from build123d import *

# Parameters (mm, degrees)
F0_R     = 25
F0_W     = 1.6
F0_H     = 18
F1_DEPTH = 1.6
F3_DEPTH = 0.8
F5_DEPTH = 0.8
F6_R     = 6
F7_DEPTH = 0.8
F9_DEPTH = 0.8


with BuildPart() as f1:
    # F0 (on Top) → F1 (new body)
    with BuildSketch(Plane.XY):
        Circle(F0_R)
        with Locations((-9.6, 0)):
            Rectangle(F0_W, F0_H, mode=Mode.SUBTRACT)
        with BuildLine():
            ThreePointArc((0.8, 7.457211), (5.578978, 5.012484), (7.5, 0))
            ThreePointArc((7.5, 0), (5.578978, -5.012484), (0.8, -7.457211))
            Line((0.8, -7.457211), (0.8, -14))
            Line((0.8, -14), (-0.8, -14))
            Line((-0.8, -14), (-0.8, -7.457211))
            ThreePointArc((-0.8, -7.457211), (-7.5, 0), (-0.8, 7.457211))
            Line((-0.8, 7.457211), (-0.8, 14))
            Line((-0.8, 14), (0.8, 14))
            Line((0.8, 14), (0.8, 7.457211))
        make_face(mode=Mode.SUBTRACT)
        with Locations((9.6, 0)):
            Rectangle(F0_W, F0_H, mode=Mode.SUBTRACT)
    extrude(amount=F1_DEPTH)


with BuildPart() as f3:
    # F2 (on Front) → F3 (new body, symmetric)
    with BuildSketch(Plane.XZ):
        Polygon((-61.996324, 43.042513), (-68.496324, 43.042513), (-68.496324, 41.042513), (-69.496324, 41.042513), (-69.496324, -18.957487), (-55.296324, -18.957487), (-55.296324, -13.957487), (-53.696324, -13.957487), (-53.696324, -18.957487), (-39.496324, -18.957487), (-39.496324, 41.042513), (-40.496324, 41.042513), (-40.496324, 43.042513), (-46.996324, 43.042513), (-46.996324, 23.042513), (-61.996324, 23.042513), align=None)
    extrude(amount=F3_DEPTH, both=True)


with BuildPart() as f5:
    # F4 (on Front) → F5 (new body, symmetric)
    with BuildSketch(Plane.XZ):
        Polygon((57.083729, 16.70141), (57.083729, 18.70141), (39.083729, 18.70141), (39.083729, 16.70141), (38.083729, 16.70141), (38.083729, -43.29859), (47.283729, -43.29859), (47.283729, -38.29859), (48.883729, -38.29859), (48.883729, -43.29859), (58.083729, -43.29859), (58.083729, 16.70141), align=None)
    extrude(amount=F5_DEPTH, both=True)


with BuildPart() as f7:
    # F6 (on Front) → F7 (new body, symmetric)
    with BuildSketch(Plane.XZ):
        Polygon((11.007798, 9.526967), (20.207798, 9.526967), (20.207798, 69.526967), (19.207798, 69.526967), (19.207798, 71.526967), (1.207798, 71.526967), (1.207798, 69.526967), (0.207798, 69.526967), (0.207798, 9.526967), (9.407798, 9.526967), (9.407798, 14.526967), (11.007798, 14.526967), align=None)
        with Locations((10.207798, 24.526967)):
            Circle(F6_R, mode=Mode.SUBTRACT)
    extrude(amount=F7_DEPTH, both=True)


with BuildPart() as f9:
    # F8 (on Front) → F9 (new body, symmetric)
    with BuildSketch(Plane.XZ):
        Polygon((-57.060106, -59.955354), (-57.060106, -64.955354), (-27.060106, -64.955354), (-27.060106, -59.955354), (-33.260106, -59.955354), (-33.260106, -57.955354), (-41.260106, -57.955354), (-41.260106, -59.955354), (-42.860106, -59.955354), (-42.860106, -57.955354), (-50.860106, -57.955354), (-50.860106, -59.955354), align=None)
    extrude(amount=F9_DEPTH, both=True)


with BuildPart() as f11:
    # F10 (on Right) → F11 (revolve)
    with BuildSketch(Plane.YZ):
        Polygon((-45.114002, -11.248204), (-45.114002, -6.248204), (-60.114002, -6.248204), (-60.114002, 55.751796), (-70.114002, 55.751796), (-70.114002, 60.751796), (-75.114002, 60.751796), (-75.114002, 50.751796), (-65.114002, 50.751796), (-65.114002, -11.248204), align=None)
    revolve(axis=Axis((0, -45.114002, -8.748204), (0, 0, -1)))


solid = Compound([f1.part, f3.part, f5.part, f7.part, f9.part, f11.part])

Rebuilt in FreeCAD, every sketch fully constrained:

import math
import FreeCAD as App
import Part
import Sketcher

doc = App.newDocument("Part")
body = doc.addObject("PartDesign::Body", "Body")

# Sketch on XY plane
sketch1 = body.newObject("Sketcher::SketchObject", "Sketch")
sketch1.AttachmentSupport = (doc.getObject("XY_Plane"), [""])
sketch1.MapMode = "FlatFace"
sketch1.addGeometry([
    Part.Circle(App.Vector(0, 0, 0), App.Vector(0, 0, 1), 25),  # 0
    Part.LineSegment(App.Vector(-8.8, -9, 0), App.Vector(-10.4, -9, 0)),  # 1
    Part.LineSegment(App.Vector(-10.4, -9, 0), App.Vector(-10.4, 9, 0)),  # 2
    Part.LineSegment(App.Vector(-10.4, 9, 0), App.Vector(-8.8, 9, 0)),  # 3
    Part.LineSegment(App.Vector(-8.8, 9, 0), App.Vector(-8.8, -9, 0)),  # 4
    Part.LineSegment(App.Vector(0.8, 14, 0), App.Vector(0.8, 7.5, 0)),  # 5
    Part.ArcOfCircle(Part.Circle(App.Vector(0, 0, 0), App.Vector(0, 0, 1), 7.5), math.radians(0), math.radians(84)),  # 6
    Part.ArcOfCircle(Part.Circle(App.Vector(0, 0, 0), App.Vector(0, 0, 1), 7.5), math.radians(-84), math.radians(0)),  # 7
    Part.LineSegment(App.Vector(0.8, -7.5, 0), App.Vector(0.8, -14, 0)),  # 8
    Part.LineSegment(App.Vector(0.8, -14, 0), App.Vector(-0.8, -14, 0)),  # 9
    Part.LineSegment(App.Vector(-0.8, -14, 0), App.Vector(-0.8, -7.5, 0)),  # 10
    Part.ArcOfCircle(Part.Circle(App.Vector(0, 0, 0), App.Vector(0, 0, 1), 7.5), math.radians(96), math.radians(264)),  # 11
    Part.LineSegment(App.Vector(-0.8, 7.5, 0), App.Vector(-0.8, 14, 0)),  # 12
    Part.LineSegment(App.Vector(-0.8, 14, 0), App.Vector(0.8, 14, 0)),  # 13
    Part.LineSegment(App.Vector(10.4, -9, 0), App.Vector(8.8, -9, 0)),  # 14
    Part.LineSegment(App.Vector(8.8, -9, 0), App.Vector(8.8, 9, 0)),  # 15
    Part.LineSegment(App.Vector(8.8, 9, 0), App.Vector(10.4, 9, 0)),  # 16
    Part.LineSegment(App.Vector(10.4, 9, 0), App.Vector(10.4, -9, 0)),  # 17
], False)
sketch1.addConstraint([
    Sketcher.Constraint("Coincident", 1, 2, 2, 1),
    Sketcher.Constraint("Coincident", 2, 2, 3, 1),
    Sketcher.Constraint("Coincident", 3, 2, 4, 1),
    Sketcher.Constraint("Coincident", 4, 2, 1, 1),
    Sketcher.Constraint("Coincident", 5, 2, 6, 2),
    Sketcher.Constraint("Tangent", 6, 1, 7, 2),
    Sketcher.Constraint("Coincident", 7, 1, 8, 1),
    Sketcher.Constraint("Coincident", 8, 2, 9, 1),
    Sketcher.Constraint("Coincident", 9, 2, 10, 1),
    Sketcher.Constraint("Coincident", 10, 2, 11, 2),
    Sketcher.Constraint("Coincident", 11, 1, 12, 1),
    Sketcher.Constraint("Coincident", 12, 2, 13, 1),
    Sketcher.Constraint("Coincident", 13, 2, 5, 1),
    Sketcher.Constraint("Coincident", 14, 2, 15, 1),
    Sketcher.Constraint("Coincident", 15, 2, 16, 1),
    Sketcher.Constraint("Coincident", 16, 2, 17, 1),
    Sketcher.Constraint("Coincident", 17, 2, 14, 1),
    Sketcher.Constraint("Horizontal", 1),
    Sketcher.Constraint("Vertical", 2),
    Sketcher.Constraint("Horizontal", 3),
    Sketcher.Constraint("Vertical", 4),
    Sketcher.Constraint("Vertical", 5),
    Sketcher.Constraint("Vertical", 8),
    Sketcher.Constraint("Horizontal", 9),
    Sketcher.Constraint("Vertical", 10),
    Sketcher.Constraint("Vertical", 12),
    Sketcher.Constraint("Horizontal", 13),
    Sketcher.Constraint("Horizontal", 14),
    Sketcher.Constraint("Vertical", 15),
    Sketcher.Constraint("Horizontal", 16),
    Sketcher.Constraint("Vertical", 17),
    Sketcher.Constraint("Coincident", 0, 3, -1, 1),
    Sketcher.Constraint("Coincident", 6, 3, -1, 1),
    Sketcher.Constraint("Coincident", 11, 3, -1, 1),
    Sketcher.Constraint("Equal", 6, 7),
    Sketcher.Constraint("Equal", 7, 11),
    Sketcher.Constraint("Symmetric", 8, 2, 12, 2, -1, 1),
    Sketcher.Constraint("Symmetric", 3, 2, 14, 2, -1, 1),
    Sketcher.Constraint("Symmetric", 1, 2, 16, 2, -1, 1),
    Sketcher.Constraint("PointOnObject", 6, 1, -1),
    Sketcher.Constraint("Horizontal", 7, 1, 10, 2),
    Sketcher.Constraint("Horizontal", 5, 2, 11, 1),
    Sketcher.Constraint("Horizontal", 4, 2, 14, 2),
    Sketcher.Constraint("Equal", 3, 9),
    Sketcher.Constraint("Diameter", 0, 50.0),
    Sketcher.Constraint("Radius", 6, 7.500001),
    Sketcher.Constraint("DistanceY", 2, 1, 2, 2, 18.0),
    Sketcher.Constraint("DistanceX", 1, 2, 1, 1, 1.6),
    Sketcher.Constraint("DistanceY", 8, 2, -1, 1, 14.0),
    Sketcher.Constraint("DistanceX", 4, 2, 9, 2, 8.0),
])
pad1 = body.newObject("PartDesign::Pad", "Pad")
pad1.Profile = sketch1
pad1.Length = 1.6
body2 = doc.addObject("PartDesign::Body", "Body001")

# Sketch on XZ plane
sketch2 = body2.newObject("Sketcher::SketchObject", "Sketch001")
sketch2.AttachmentSupport = (doc.getObject("XZ_Plane001"), [""])
sketch2.MapMode = "FlatFace"
sketch2.addGeometry([
    Part.LineSegment(App.Vector(-62, 43, 0), App.Vector(-68.5, 43, 0)),  # 0
    Part.LineSegment(App.Vector(-68.5, 43, 0), App.Vector(-68.5, 41, 0)),  # 1
    Part.LineSegment(App.Vector(-68.5, 41, 0), App.Vector(-69.5, 41, 0)),  # 2
    Part.LineSegment(App.Vector(-69.5, 41, 0), App.Vector(-69.5, -19, 0)),  # 3
    Part.LineSegment(App.Vector(-69.5, -19, 0), App.Vector(-55.3, -19, 0)),  # 4
    Part.LineSegment(App.Vector(-55.3, -19, 0), App.Vector(-55.3, -14, 0)),  # 5
    Part.LineSegment(App.Vector(-55.3, -14, 0), App.Vector(-53.7, -14, 0)),  # 6
    Part.LineSegment(App.Vector(-53.7, -14, 0), App.Vector(-53.7, -19, 0)),  # 7
    Part.LineSegment(App.Vector(-53.7, -19, 0), App.Vector(-39.5, -19, 0)),  # 8
    Part.LineSegment(App.Vector(-39.5, -19, 0), App.Vector(-39.5, 41, 0)),  # 9
    Part.LineSegment(App.Vector(-39.5, 41, 0), App.Vector(-40.5, 41, 0)),  # 10
    Part.LineSegment(App.Vector(-40.5, 41, 0), App.Vector(-40.5, 43, 0)),  # 11
    Part.LineSegment(App.Vector(-40.5, 43, 0), App.Vector(-47, 43, 0)),  # 12
    Part.LineSegment(App.Vector(-47, 43, 0), App.Vector(-47, 23, 0)),  # 13
    Part.LineSegment(App.Vector(-47, 23, 0), App.Vector(-62, 23, 0)),  # 14
    Part.LineSegment(App.Vector(-62, 23, 0), App.Vector(-62, 43, 0)),  # 15
], False)
sketch2.addConstraint([
    Sketcher.Constraint("Coincident", 0, 2, 1, 1),
    Sketcher.Constraint("Coincident", 1, 2, 2, 1),
    Sketcher.Constraint("Coincident", 2, 2, 3, 1),
    Sketcher.Constraint("Coincident", 3, 2, 4, 1),
    Sketcher.Constraint("Coincident", 4, 2, 5, 1),
    Sketcher.Constraint("Coincident", 5, 2, 6, 1),
    Sketcher.Constraint("Coincident", 6, 2, 7, 1),
    Sketcher.Constraint("Coincident", 7, 2, 8, 1),
    Sketcher.Constraint("Coincident", 8, 2, 9, 1),
    Sketcher.Constraint("Coincident", 9, 2, 10, 1),
    Sketcher.Constraint("Coincident", 10, 2, 11, 1),
    Sketcher.Constraint("Coincident", 11, 2, 12, 1),
    Sketcher.Constraint("Coincident", 12, 2, 13, 1),
    Sketcher.Constraint("Coincident", 13, 2, 14, 1),
    Sketcher.Constraint("Coincident", 14, 2, 15, 1),
    Sketcher.Constraint("Coincident", 15, 2, 0, 1),
    Sketcher.Constraint("Horizontal", 0),
    Sketcher.Constraint("Vertical", 1),
    Sketcher.Constraint("Horizontal", 2),
    Sketcher.Constraint("Vertical", 3),
    Sketcher.Constraint("Horizontal", 4),
    Sketcher.Constraint("Vertical", 5),
    Sketcher.Constraint("Horizontal", 6),
    Sketcher.Constraint("Vertical", 7),
    Sketcher.Constraint("Horizontal", 8),
    Sketcher.Constraint("Vertical", 9),
    Sketcher.Constraint("Horizontal", 10),
    Sketcher.Constraint("Vertical", 11),
    Sketcher.Constraint("Horizontal", 12),
    Sketcher.Constraint("Vertical", 13),
    Sketcher.Constraint("Horizontal", 14),
    Sketcher.Constraint("Vertical", 15),
    Sketcher.Constraint("Horizontal", 4, 2, 7, 2),
    Sketcher.Constraint("Horizontal", 2, 2, 9, 2),
    Sketcher.Constraint("Horizontal", 0, 2, 11, 2),
    Sketcher.Constraint("Equal", 4, 8),
    Sketcher.Constraint("Equal", 2, 10),
    Sketcher.Constraint("Equal", 0, 12),
    Sketcher.Constraint("DistanceX", 2, 2, 2, 1, 1.0),
    Sketcher.Constraint("DistanceX", 14, 2, 14, 1, 15.0),
    Sketcher.Constraint("DistanceY", 1, 2, 1, 1, 2.0),
    Sketcher.Constraint("DistanceY", 3, 2, 3, 1, 60.0),
    Sketcher.Constraint("DistanceY", 5, 1, 5, 2, 5.0),
    Sketcher.Constraint("DistanceY", 13, 2, 13, 1, 20.0),
    Sketcher.Constraint("DistanceX", 0, 2, 0, 1, 6.5),
    Sketcher.Constraint("DistanceX", 4, 1, 4, 2, 14.2),
    Sketcher.Constraint("DistanceX", 0, 2, -1, 1, 68.496324),
    Sketcher.Constraint("DistanceY", -1, 1, 0, 2, 43.042513),
])
pad2 = body2.newObject("PartDesign::Pad", "Pad001")
pad2.Profile = sketch2
pad2.Length = 1.6
pad2.Midplane = True
body3 = doc.addObject("PartDesign::Body", "Body002")

# Sketch on XZ plane
sketch3 = body3.newObject("Sketcher::SketchObject", "Sketch002")
sketch3.AttachmentSupport = (doc.getObject("XZ_Plane002"), [""])
sketch3.MapMode = "FlatFace"
sketch3.addGeometry([
    Part.LineSegment(App.Vector(57.1, 16.7, 0), App.Vector(57.1, 18.7, 0)),  # 0
    Part.LineSegment(App.Vector(57.1, 18.7, 0), App.Vector(39.1, 18.7, 0)),  # 1
    Part.LineSegment(App.Vector(39.1, 18.7, 0), App.Vector(39.1, 16.7, 0)),  # 2
    Part.LineSegment(App.Vector(39.1, 16.7, 0), App.Vector(38.1, 16.7, 0)),  # 3
    Part.LineSegment(App.Vector(38.1, 16.7, 0), App.Vector(38.1, -43.3, 0)),  # 4
    Part.LineSegment(App.Vector(38.1, -43.3, 0), App.Vector(47.3, -43.3, 0)),  # 5
    Part.LineSegment(App.Vector(47.3, -43.3, 0), App.Vector(47.3, -38.3, 0)),  # 6
    Part.LineSegment(App.Vector(47.3, -38.3, 0), App.Vector(48.9, -38.3, 0)),  # 7
    Part.LineSegment(App.Vector(48.9, -38.3, 0), App.Vector(48.9, -43.3, 0)),  # 8
    Part.LineSegment(App.Vector(48.9, -43.3, 0), App.Vector(58.1, -43.3, 0)),  # 9
    Part.LineSegment(App.Vector(58.1, -43.3, 0), App.Vector(58.1, 16.7, 0)),  # 10
    Part.LineSegment(App.Vector(58.1, 16.7, 0), App.Vector(57.1, 16.7, 0)),  # 11
], False)
sketch3.addConstraint([
    Sketcher.Constraint("Coincident", 0, 2, 1, 1),
    Sketcher.Constraint("Coincident", 1, 2, 2, 1),
    Sketcher.Constraint("Coincident", 2, 2, 3, 1),
    Sketcher.Constraint("Coincident", 3, 2, 4, 1),
    Sketcher.Constraint("Coincident", 4, 2, 5, 1),
    Sketcher.Constraint("Coincident", 5, 2, 6, 1),
    Sketcher.Constraint("Coincident", 6, 2, 7, 1),
    Sketcher.Constraint("Coincident", 7, 2, 8, 1),
    Sketcher.Constraint("Coincident", 8, 2, 9, 1),
    Sketcher.Constraint("Coincident", 9, 2, 10, 1),
    Sketcher.Constraint("Coincident", 10, 2, 11, 1),
    Sketcher.Constraint("Coincident", 11, 2, 0, 1),
    Sketcher.Constraint("Vertical", 0),
    Sketcher.Constraint("Horizontal", 1),
    Sketcher.Constraint("Vertical", 2),
    Sketcher.Constraint("Horizontal", 3),
    Sketcher.Constraint("Vertical", 4),
    Sketcher.Constraint("Horizontal", 5),
    Sketcher.Constraint("Vertical", 6),
    Sketcher.Constraint("Horizontal", 7),
    Sketcher.Constraint("Vertical", 8),
    Sketcher.Constraint("Horizontal", 9),
    Sketcher.Constraint("Vertical", 10),
    Sketcher.Constraint("Horizontal", 11),
    Sketcher.Constraint("Horizontal", 5, 2, 8, 2),
    Sketcher.Constraint("Horizontal", 3, 2, 10, 2),
    Sketcher.Constraint("Equal", 5, 9),
    Sketcher.Constraint("Equal", 3, 11),
    Sketcher.Constraint("DistanceX", 1, 2, 1, 1, 18.0),
    Sketcher.Constraint("DistanceX", 3, 2, 3, 1, 1.0),
    Sketcher.Constraint("DistanceY", 0, 1, 0, 2, 2.0),
    Sketcher.Constraint("DistanceY", 4, 2, 4, 1, 60.0),
    Sketcher.Constraint("DistanceY", 6, 1, 6, 2, 5.0),
    Sketcher.Constraint("DistanceX", 5, 1, 5, 2, 9.2),
    Sketcher.Constraint("DistanceX", -1, 1, 0, 2, 57.083729),
    Sketcher.Constraint("DistanceY", -1, 1, 0, 2, 18.70141),
])
pad3 = body3.newObject("PartDesign::Pad", "Pad002")
pad3.Profile = sketch3
pad3.Length = 1.6
pad3.Midplane = True
body4 = doc.addObject("PartDesign::Body", "Body003")

# Sketch on XZ plane
sketch4 = body4.newObject("Sketcher::SketchObject", "Sketch003")
sketch4.AttachmentSupport = (doc.getObject("XZ_Plane003"), [""])
sketch4.MapMode = "FlatFace"
sketch4.addGeometry([
    Part.LineSegment(App.Vector(11, 9.5, 0), App.Vector(20.2, 9.5, 0)),  # 0
    Part.LineSegment(App.Vector(20.2, 9.5, 0), App.Vector(20.2, 69.5, 0)),  # 1
    Part.LineSegment(App.Vector(20.2, 69.5, 0), App.Vector(19.2, 69.5, 0)),  # 2
    Part.LineSegment(App.Vector(19.2, 69.5, 0), App.Vector(19.2, 71.5, 0)),  # 3
    Part.LineSegment(App.Vector(19.2, 71.5, 0), App.Vector(1.2, 71.5, 0)),  # 4
    Part.LineSegment(App.Vector(1.2, 71.5, 0), App.Vector(1.2, 69.5, 0)),  # 5
    Part.LineSegment(App.Vector(1.2, 69.5, 0), App.Vector(0.2, 69.5, 0)),  # 6
    Part.LineSegment(App.Vector(0.2, 69.5, 0), App.Vector(0.2, 9.5, 0)),  # 7
    Part.LineSegment(App.Vector(0.2, 9.5, 0), App.Vector(9.4, 9.5, 0)),  # 8
    Part.LineSegment(App.Vector(9.4, 9.5, 0), App.Vector(9.4, 14.5, 0)),  # 9
    Part.LineSegment(App.Vector(9.4, 14.5, 0), App.Vector(11, 14.5, 0)),  # 10
    Part.LineSegment(App.Vector(11, 14.5, 0), App.Vector(11, 9.5, 0)),  # 11
    Part.Circle(App.Vector(10.2, 24.5, 0), App.Vector(0, 0, 1), 6),  # 12
], False)
sketch4.addConstraint([
    Sketcher.Constraint("Coincident", 0, 2, 1, 1),
    Sketcher.Constraint("Coincident", 1, 2, 2, 1),
    Sketcher.Constraint("Coincident", 2, 2, 3, 1),
    Sketcher.Constraint("Coincident", 3, 2, 4, 1),
    Sketcher.Constraint("Coincident", 4, 2, 5, 1),
    Sketcher.Constraint("Coincident", 5, 2, 6, 1),
    Sketcher.Constraint("Coincident", 6, 2, 7, 1),
    Sketcher.Constraint("Coincident", 7, 2, 8, 1),
    Sketcher.Constraint("Coincident", 8, 2, 9, 1),
    Sketcher.Constraint("Coincident", 9, 2, 10, 1),
    Sketcher.Constraint("Coincident", 10, 2, 11, 1),
    Sketcher.Constraint("Coincident", 11, 2, 0, 1),
    Sketcher.Constraint("Horizontal", 0),
    Sketcher.Constraint("Vertical", 1),
    Sketcher.Constraint("Horizontal", 2),
    Sketcher.Constraint("Vertical", 3),
    Sketcher.Constraint("Horizontal", 4),
    Sketcher.Constraint("Vertical", 5),
    Sketcher.Constraint("Horizontal", 6),
    Sketcher.Constraint("Vertical", 7),
    Sketcher.Constraint("Horizontal", 8),
    Sketcher.Constraint("Vertical", 9),
    Sketcher.Constraint("Horizontal", 10),
    Sketcher.Constraint("Vertical", 11),
    Sketcher.Constraint("Horizontal", 2, 2, 5, 2),
    Sketcher.Constraint("Horizontal", 0, 2, 7, 2),
    Sketcher.Constraint("Equal", 2, 6),
    Sketcher.Constraint("Equal", 0, 8),
    Sketcher.Constraint("Diameter", 12, 12.0),
    Sketcher.Constraint("DistanceX", 2, 2, 2, 1, 1.0),
    Sketcher.Constraint("DistanceX", 4, 2, 4, 1, 18.0),
    Sketcher.Constraint("DistanceY", 1, 1, 1, 2, 60.0),
    Sketcher.Constraint("DistanceY", 3, 1, 3, 2, 2.0),
    Sketcher.Constraint("DistanceY", 9, 1, 9, 2, 5.0),
    Sketcher.Constraint("DistanceX", 0, 1, 0, 2, 9.2),
    Sketcher.Constraint("DistanceX", 12, 3, 0, 2, 10.0),
    Sketcher.Constraint("DistanceY", 0, 2, 12, 3, 15.0),
    Sketcher.Constraint("DistanceX", -1, 1, 0, 2, 20.207798),
    Sketcher.Constraint("DistanceY", -1, 1, 12, 3, 24.526967),
])
pad4 = body4.newObject("PartDesign::Pad", "Pad003")
pad4.Profile = sketch4
pad4.Length = 1.6
pad4.Midplane = True
body5 = doc.addObject("PartDesign::Body", "Body004")

# Sketch on XZ plane
sketch5 = body5.newObject("Sketcher::SketchObject", "Sketch004")
sketch5.AttachmentSupport = (doc.getObject("XZ_Plane004"), [""])
sketch5.MapMode = "FlatFace"
sketch5.addGeometry([
    Part.LineSegment(App.Vector(-57.1, -60, 0), App.Vector(-57.1, -65, 0)),  # 0
    Part.LineSegment(App.Vector(-57.1, -65, 0), App.Vector(-27.1, -65, 0)),  # 1
    Part.LineSegment(App.Vector(-27.1, -65, 0), App.Vector(-27.1, -60, 0)),  # 2
    Part.LineSegment(App.Vector(-27.1, -60, 0), App.Vector(-33.3, -60, 0)),  # 3
    Part.LineSegment(App.Vector(-33.3, -60, 0), App.Vector(-33.3, -58, 0)),  # 4
    Part.LineSegment(App.Vector(-33.3, -58, 0), App.Vector(-41.3, -58, 0)),  # 5
    Part.LineSegment(App.Vector(-41.3, -58, 0), App.Vector(-41.3, -60, 0)),  # 6
    Part.LineSegment(App.Vector(-41.3, -60, 0), App.Vector(-42.9, -60, 0)),  # 7
    Part.LineSegment(App.Vector(-42.9, -60, 0), App.Vector(-42.9, -58, 0)),  # 8
    Part.LineSegment(App.Vector(-42.9, -58, 0), App.Vector(-50.9, -58, 0)),  # 9
    Part.LineSegment(App.Vector(-50.9, -58, 0), App.Vector(-50.9, -60, 0)),  # 10
    Part.LineSegment(App.Vector(-50.9, -60, 0), App.Vector(-57.1, -60, 0)),  # 11
], False)
sketch5.addConstraint([
    Sketcher.Constraint("Coincident", 0, 2, 1, 1),
    Sketcher.Constraint("Coincident", 1, 2, 2, 1),
    Sketcher.Constraint("Coincident", 2, 2, 3, 1),
    Sketcher.Constraint("Coincident", 3, 2, 4, 1),
    Sketcher.Constraint("Coincident", 4, 2, 5, 1),
    Sketcher.Constraint("Coincident", 5, 2, 6, 1),
    Sketcher.Constraint("Coincident", 6, 2, 7, 1),
    Sketcher.Constraint("Coincident", 7, 2, 8, 1),
    Sketcher.Constraint("Coincident", 8, 2, 9, 1),
    Sketcher.Constraint("Coincident", 9, 2, 10, 1),
    Sketcher.Constraint("Coincident", 10, 2, 11, 1),
    Sketcher.Constraint("Coincident", 11, 2, 0, 1),
    Sketcher.Constraint("Vertical", 0),
    Sketcher.Constraint("Horizontal", 1),
    Sketcher.Constraint("Vertical", 2),
    Sketcher.Constraint("Horizontal", 3),
    Sketcher.Constraint("Vertical", 4),
    Sketcher.Constraint("Horizontal", 5),
    Sketcher.Constraint("Vertical", 6),
    Sketcher.Constraint("Horizontal", 7),
    Sketcher.Constraint("Vertical", 8),
    Sketcher.Constraint("Horizontal", 9),
    Sketcher.Constraint("Vertical", 10),
    Sketcher.Constraint("Horizontal", 11),
    Sketcher.Constraint("Horizontal", 3, 2, 6, 2),
    Sketcher.Constraint("Horizontal", 5, 2, 8, 2),
    Sketcher.Constraint("Horizontal", 7, 2, 10, 2),
    Sketcher.Constraint("Equal", 5, 9),
    Sketcher.Constraint("Equal", 3, 11),
    Sketcher.Constraint("DistanceX", 1, 1, 1, 2, 30.0),
    Sketcher.Constraint("DistanceX", 5, 2, 5, 1, 8.0),
    Sketcher.Constraint("DistanceY", 0, 2, 0, 1, 5.0),
    Sketcher.Constraint("DistanceY", 4, 1, 4, 2, 2.0),
    Sketcher.Constraint("DistanceX", 3, 2, 3, 1, 6.2),
    Sketcher.Constraint("DistanceX", 0, 2, -1, 1, 57.060106),
    Sketcher.Constraint("DistanceY", 0, 2, -1, 1, 64.955354),
])
pad5 = body5.newObject("PartDesign::Pad", "Pad004")
pad5.Profile = sketch5
pad5.Length = 1.6
pad5.Midplane = True
body6 = doc.addObject("PartDesign::Body", "Body005")

# Sketch on YZ plane
sketch6 = body6.newObject("Sketcher::SketchObject", "Sketch005")
sketch6.AttachmentSupport = (doc.getObject("YZ_Plane005"), [""])
sketch6.MapMode = "FlatFace"
sketch6.addGeometry([
    Part.LineSegment(App.Vector(-45.1, -11.2, 0), App.Vector(-45.1, -6.2, 0)),  # 0
    Part.LineSegment(App.Vector(-45.1, -6.2, 0), App.Vector(-60.1, -6.2, 0)),  # 1
    Part.LineSegment(App.Vector(-60.1, -6.2, 0), App.Vector(-60.1, 55.8, 0)),  # 2
    Part.LineSegment(App.Vector(-60.1, 55.8, 0), App.Vector(-70.1, 55.8, 0)),  # 3
    Part.LineSegment(App.Vector(-70.1, 55.8, 0), App.Vector(-70.1, 60.8, 0)),  # 4
    Part.LineSegment(App.Vector(-70.1, 60.8, 0), App.Vector(-75.1, 60.8, 0)),  # 5
    Part.LineSegment(App.Vector(-75.1, 60.8, 0), App.Vector(-75.1, 50.8, 0)),  # 6
    Part.LineSegment(App.Vector(-75.1, 50.8, 0), App.Vector(-65.1, 50.8, 0)),  # 7
    Part.LineSegment(App.Vector(-65.1, 50.8, 0), App.Vector(-65.1, -11.2, 0)),  # 8
    Part.LineSegment(App.Vector(-65.1, -11.2, 0), App.Vector(-45.1, -11.2, 0)),  # 9
], False)
sketch6.addGeometry(Part.LineSegment(App.Vector(-45.1, 60.8, 0), App.Vector(-45.1, -11.2, 0)), True)  # axis
sketch6.addConstraint([
    Sketcher.Constraint("Coincident", 0, 2, 1, 1),
    Sketcher.Constraint("Coincident", 1, 2, 2, 1),
    Sketcher.Constraint("Coincident", 2, 2, 3, 1),
    Sketcher.Constraint("Coincident", 3, 2, 4, 1),
    Sketcher.Constraint("Coincident", 4, 2, 5, 1),
    Sketcher.Constraint("Coincident", 5, 2, 6, 1),
    Sketcher.Constraint("Coincident", 6, 2, 7, 1),
    Sketcher.Constraint("Coincident", 7, 2, 8, 1),
    Sketcher.Constraint("Coincident", 8, 2, 9, 1),
    Sketcher.Constraint("Coincident", 9, 2, 0, 1),
    Sketcher.Constraint("Vertical", 0),
    Sketcher.Constraint("Horizontal", 1),
    Sketcher.Constraint("Vertical", 2),
    Sketcher.Constraint("Horizontal", 3),
    Sketcher.Constraint("Vertical", 4),
    Sketcher.Constraint("Horizontal", 5),
    Sketcher.Constraint("Vertical", 6),
    Sketcher.Constraint("Horizontal", 7),
    Sketcher.Constraint("Vertical", 8),
    Sketcher.Constraint("Horizontal", 9),
    Sketcher.Constraint("Vertical", 10),
    Sketcher.Constraint("Coincident", 10, 2, 9, 2),
    Sketcher.Constraint("Horizontal", 5, 2, 10, 1),
    Sketcher.Constraint("Equal", 3, 7),
    Sketcher.Constraint("Equal", 5, 0),
    Sketcher.Constraint("Equal", 0, 4),
    Sketcher.Constraint("Equal", 7, 6),
    Sketcher.Constraint("Equal", 2, 8),
    Sketcher.Constraint("DistanceX", 1, 2, 1, 1, 15.0),
    Sketcher.Constraint("DistanceX", 3, 2, 3, 1, 10.0),
    Sketcher.Constraint("DistanceY", 2, 1, 2, 2, 62.0),
    Sketcher.Constraint("DistanceX", 3, 2, -1, 1, 70.114002),
    Sketcher.Constraint("DistanceY", 0, 2, -1, 1, 6.248204),
])
revolution = body6.newObject("PartDesign::Revolution", "Revolution")
revolution.Profile = sketch6
revolution.ReferenceAxis = (sketch6, ["Axis0"])
revolution.Angle = 360

doc.recompute()
